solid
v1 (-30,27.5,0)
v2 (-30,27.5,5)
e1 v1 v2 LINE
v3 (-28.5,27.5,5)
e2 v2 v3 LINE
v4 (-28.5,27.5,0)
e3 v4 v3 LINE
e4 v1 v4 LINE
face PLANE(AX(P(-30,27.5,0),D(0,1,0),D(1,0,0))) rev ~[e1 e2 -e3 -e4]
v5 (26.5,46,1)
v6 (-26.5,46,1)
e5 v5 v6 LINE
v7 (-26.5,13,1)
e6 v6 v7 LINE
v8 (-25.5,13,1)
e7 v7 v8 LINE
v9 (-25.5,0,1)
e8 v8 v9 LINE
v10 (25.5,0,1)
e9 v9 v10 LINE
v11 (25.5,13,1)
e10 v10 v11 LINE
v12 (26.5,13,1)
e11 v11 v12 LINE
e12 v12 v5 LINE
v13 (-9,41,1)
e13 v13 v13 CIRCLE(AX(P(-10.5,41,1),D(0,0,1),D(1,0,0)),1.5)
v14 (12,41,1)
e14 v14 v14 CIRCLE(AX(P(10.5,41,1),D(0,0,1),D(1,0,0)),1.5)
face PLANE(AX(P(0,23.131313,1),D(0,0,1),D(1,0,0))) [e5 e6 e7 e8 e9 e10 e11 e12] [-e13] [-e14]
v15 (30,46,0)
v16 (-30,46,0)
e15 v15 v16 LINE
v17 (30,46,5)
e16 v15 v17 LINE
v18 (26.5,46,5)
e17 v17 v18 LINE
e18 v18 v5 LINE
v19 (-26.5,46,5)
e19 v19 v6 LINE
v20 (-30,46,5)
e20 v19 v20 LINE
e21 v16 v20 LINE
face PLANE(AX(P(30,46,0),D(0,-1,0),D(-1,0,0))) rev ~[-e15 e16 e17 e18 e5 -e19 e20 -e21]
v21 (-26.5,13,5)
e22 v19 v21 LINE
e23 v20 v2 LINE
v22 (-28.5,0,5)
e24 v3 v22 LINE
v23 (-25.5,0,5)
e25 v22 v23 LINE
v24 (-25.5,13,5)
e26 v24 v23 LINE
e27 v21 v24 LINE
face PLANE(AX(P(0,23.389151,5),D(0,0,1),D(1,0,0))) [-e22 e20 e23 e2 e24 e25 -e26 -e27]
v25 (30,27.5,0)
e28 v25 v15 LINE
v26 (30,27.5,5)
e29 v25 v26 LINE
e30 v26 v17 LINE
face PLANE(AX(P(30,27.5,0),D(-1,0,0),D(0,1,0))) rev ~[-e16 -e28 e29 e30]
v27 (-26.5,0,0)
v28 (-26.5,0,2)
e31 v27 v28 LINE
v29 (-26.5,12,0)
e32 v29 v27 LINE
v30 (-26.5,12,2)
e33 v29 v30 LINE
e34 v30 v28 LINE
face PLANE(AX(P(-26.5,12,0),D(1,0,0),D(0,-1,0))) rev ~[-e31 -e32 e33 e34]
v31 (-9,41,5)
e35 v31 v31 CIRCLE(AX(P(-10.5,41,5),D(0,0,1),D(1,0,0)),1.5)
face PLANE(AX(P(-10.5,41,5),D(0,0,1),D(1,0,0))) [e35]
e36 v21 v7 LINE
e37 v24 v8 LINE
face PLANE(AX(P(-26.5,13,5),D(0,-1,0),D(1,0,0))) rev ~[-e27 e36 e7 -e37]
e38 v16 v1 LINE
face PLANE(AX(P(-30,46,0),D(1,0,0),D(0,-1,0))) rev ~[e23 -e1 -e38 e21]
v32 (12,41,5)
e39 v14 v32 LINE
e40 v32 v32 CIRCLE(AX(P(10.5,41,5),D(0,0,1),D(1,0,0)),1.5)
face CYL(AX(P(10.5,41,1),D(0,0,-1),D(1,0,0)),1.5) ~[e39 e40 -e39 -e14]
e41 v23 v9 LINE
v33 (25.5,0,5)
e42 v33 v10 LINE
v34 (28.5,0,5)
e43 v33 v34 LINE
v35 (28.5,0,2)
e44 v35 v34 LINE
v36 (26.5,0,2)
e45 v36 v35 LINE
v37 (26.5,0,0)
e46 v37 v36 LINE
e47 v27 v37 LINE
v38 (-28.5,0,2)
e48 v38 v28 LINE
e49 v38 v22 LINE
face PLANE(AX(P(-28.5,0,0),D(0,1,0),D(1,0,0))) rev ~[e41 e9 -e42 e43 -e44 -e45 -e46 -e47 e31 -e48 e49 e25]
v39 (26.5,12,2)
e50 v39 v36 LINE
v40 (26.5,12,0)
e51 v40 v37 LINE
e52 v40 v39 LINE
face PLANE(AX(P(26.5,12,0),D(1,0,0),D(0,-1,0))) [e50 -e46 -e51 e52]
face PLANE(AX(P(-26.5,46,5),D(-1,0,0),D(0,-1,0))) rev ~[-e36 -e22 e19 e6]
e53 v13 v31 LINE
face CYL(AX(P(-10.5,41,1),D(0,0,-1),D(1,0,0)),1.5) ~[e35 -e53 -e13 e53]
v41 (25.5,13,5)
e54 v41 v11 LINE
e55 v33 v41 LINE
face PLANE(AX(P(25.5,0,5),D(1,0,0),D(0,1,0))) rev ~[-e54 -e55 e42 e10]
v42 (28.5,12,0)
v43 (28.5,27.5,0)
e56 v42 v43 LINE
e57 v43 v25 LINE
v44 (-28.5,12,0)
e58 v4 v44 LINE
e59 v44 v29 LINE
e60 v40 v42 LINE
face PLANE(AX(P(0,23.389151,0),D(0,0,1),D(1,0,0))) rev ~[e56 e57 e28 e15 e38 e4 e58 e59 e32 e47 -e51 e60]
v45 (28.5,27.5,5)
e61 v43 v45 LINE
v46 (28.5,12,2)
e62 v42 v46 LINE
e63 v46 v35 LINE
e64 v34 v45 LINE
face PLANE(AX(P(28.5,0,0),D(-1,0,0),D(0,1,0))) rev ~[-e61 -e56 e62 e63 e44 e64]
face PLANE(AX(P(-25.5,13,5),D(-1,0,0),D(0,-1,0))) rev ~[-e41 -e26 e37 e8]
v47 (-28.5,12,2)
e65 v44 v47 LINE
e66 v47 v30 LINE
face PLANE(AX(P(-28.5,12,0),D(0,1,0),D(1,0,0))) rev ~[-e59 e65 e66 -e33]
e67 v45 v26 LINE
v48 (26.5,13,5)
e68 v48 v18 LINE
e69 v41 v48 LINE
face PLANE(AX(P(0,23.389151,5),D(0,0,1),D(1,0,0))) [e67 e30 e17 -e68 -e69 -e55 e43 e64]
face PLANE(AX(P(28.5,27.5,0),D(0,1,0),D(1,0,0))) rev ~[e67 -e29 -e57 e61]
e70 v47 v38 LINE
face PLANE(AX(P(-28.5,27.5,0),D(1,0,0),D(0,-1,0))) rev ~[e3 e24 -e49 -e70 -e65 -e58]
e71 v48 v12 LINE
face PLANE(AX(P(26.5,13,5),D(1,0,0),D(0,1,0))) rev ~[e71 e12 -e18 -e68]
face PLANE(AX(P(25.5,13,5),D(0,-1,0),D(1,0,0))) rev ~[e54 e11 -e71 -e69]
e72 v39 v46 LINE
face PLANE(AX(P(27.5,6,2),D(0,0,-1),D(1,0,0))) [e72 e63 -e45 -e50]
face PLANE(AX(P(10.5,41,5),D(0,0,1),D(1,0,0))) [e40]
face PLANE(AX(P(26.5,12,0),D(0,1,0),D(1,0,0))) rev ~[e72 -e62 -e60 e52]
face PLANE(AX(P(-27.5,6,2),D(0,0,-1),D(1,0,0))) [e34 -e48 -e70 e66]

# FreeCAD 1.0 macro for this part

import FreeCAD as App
import Part
import Sketcher
from FreeCAD import Vector
Q = App.Units.Quantity


def add_polygon(sketch, points):
    """Adds a closed chain of lines whose ends are joined by coincident constraints."""
    first, n = sketch.GeometryCount, len(points)
    for a, b in zip(points, points[1:] + points[:1]):
        sketch.addGeometry(Part.LineSegment(App.Vector(*a, 0), App.Vector(*b, 0)), False)
    for i in range(n):
        sketch.addConstraint(Sketcher.Constraint("Coincident", first + i, 2, first + (i + 1) % n, 1))

doc = App.newDocument("Part")
body = doc.addObject("PartDesign::Body", "Body")

# Sketch on XY plane
sketch1 = body.newObject("Sketcher::SketchObject", "Sketch")
sketch1.AttachmentSupport = (doc.getObject("XY_Plane"), [""])
sketch1.MapMode = "FlatFace"
add_polygon(sketch1, [(-28.5, 0), (28.5, 0), (28.5, 27.5), (30, 27.5), (30, 46), (-30, 46), (-30, 27.5), (-28.5, 27.5)])  # lines 0-7
sketch1.addConstraint([
    Sketcher.Constraint("Horizontal", 0),
    Sketcher.Constraint("Vertical", 1),
    Sketcher.Constraint("Horizontal", 2),
    Sketcher.Constraint("Vertical", 3),
    Sketcher.Constraint("Horizontal", 4),
    Sketcher.Constraint("Vertical", 5),
    Sketcher.Constraint("Horizontal", 6),
    Sketcher.Constraint("Vertical", 7),
    Sketcher.Constraint("Symmetric", 0, 2, 7, 2, -1, 1),
    Sketcher.Constraint("Symmetric", 2, 2, 5, 2, -2),
    Sketcher.Constraint("DistanceX", 0, 1, 0, 2, Q("57 mm")),
    Sketcher.Constraint("DistanceX", 4, 2, 4, 1, Q("60 mm")),
    Sketcher.Constraint("DistanceY", 1, 1, 1, 2, Q("27.5 mm")),
    Sketcher.Constraint("DistanceY", 3, 1, 3, 2, Q("18.5 mm")),
])
pad1 = body.newObject("PartDesign::Pad", "Pad")
pad1.Profile = sketch1
pad1.Length = 5

# Sketch on XY plane
sketch2 = body.newObject("Sketcher::SketchObject", "Sketch001")
sketch2.AttachmentSupport = (doc.getObject("XY_Plane"), [""])
sketch2.MapMode = "FlatFace"
add_polygon(sketch2, [(-28.5, 0), (-28.5, 12), (-26.5, 12), (-26.5, 0)])  # lines 0-3
add_polygon(sketch2, [(26.5, 0), (26.5, 12), (28.5, 12), (28.5, 0)])  # lines 4-7
sketch2.addConstraint([
    Sketcher.Constraint("Vertical", 0),
    Sketcher.Constraint("Horizontal", 1),
    Sketcher.Constraint("Vertical", 2),
    Sketcher.Constraint("Horizontal", 3),
    Sketcher.Constraint("Vertical", 4),
    Sketcher.Constraint("Horizontal", 5),
    Sketcher.Constraint("Vertical", 6),
    Sketcher.Constraint("Horizontal", 7),
    Sketcher.Constraint("Symmetric", 3, 2, 6, 2, -1, 1),
    Sketcher.Constraint("Symmetric", 1, 2, 4, 2, -2),
    Sketcher.Constraint("PointOnObject", 2, 2, -1),
    Sketcher.Constraint("DistanceX", 1, 1, 1, 2, Q("2 mm")),
    Sketcher.Constraint("DistanceY", 0, 1, 0, 2, Q("12 mm")),
    Sketcher.Constraint("DistanceX", 1, 2, 4, 2, Q("53 mm")),
])
pocket1 = body.newObject("PartDesign::Pocket", "Pocket")
pocket1.Profile = sketch2
pocket1.Length = 2
pocket1.Reversed = True

# Sketch on XY plane
sketch3 = body.newObject("Sketcher::SketchObject", "Sketch002")
sketch3.AttachmentSupport = (doc.getObject("XY_Plane"), [""])
sketch3.MapMode = "FlatFace"
sketch3.AttachmentOffset = App.Placement(Vector(0, 0, 5), App.Rotation())
add_polygon(sketch3, [(-25.5, 0), (25.5, 0), (25.5, 13), (26.5, 13), (26.5, 46), (-26.5, 46), (-26.5, 13), (-25.5, 13)])  # lines 0-7
sketch3.addConstraint([
    Sketcher.Constraint("Horizontal", 0),
    Sketcher.Constraint("Vertical", 1),
    Sketcher.Constraint("Horizontal", 2),
    Sketcher.Constraint("Vertical", 3),
    Sketcher.Constraint("Horizontal", 4),
    Sketcher.Constraint("Vertical", 5),
    Sketcher.Constraint("Horizontal", 6),
    Sketcher.Constraint("Vertical", 7),
    Sketcher.Constraint("Symmetric", 0, 2, 7, 2, -1, 1),
    Sketcher.Constraint("Symmetric", 2, 2, 5, 2, -2),
    Sketcher.Constraint("DistanceX", 0, 1, 0, 2, Q("51 mm")),
    Sketcher.Constraint("DistanceX", 2, 1, 2, 2, Q("1 mm")),
    Sketcher.Constraint("DistanceY", 1, 1, 1, 2, Q("13 mm")),
    Sketcher.Constraint("DistanceY", 3, 1, 3, 2, Q("33 mm")),
])
pocket2 = body.newObject("PartDesign::Pocket", "Pocket001")
pocket2.Profile = sketch3
pocket2.Length = 4

# Sketch on XY plane
sketch4 = body.newObject("Sketcher::SketchObject", "Sketch003")
sketch4.AttachmentSupport = (doc.getObject("XY_Plane"), [""])
sketch4.MapMode = "FlatFace"
sketch4.AttachmentOffset = App.Placement(Vector(0, 0, 1), App.Rotation())
sketch4.addGeometry([
    Part.Circle(Vector(-10.5, 41, 0), Vector(0, 0, 1), 1.5),
    Part.Circle(Vector(10.5, 41, 0), Vector(0, 0, 1), 1.5),
], False)
sketch4.addConstraint([
    Sketcher.Constraint("Equal", 0, 1),
    Sketcher.Constraint("Symmetric", 0, 3, 1, 3, -2),
    Sketcher.Constraint("Diameter", 0, Q("3 mm")),
    Sketcher.Constraint("DistanceY", -1, 1, 0, 3, Q("41 mm")),
    Sketcher.Constraint("DistanceX", 0, 3, 1, 3, Q("21 mm")),
])
pad2 = body.newObject("PartDesign::Pad", "Pad001")
pad2.Profile = sketch4
pad2.Length = 4

doc.recompute()
